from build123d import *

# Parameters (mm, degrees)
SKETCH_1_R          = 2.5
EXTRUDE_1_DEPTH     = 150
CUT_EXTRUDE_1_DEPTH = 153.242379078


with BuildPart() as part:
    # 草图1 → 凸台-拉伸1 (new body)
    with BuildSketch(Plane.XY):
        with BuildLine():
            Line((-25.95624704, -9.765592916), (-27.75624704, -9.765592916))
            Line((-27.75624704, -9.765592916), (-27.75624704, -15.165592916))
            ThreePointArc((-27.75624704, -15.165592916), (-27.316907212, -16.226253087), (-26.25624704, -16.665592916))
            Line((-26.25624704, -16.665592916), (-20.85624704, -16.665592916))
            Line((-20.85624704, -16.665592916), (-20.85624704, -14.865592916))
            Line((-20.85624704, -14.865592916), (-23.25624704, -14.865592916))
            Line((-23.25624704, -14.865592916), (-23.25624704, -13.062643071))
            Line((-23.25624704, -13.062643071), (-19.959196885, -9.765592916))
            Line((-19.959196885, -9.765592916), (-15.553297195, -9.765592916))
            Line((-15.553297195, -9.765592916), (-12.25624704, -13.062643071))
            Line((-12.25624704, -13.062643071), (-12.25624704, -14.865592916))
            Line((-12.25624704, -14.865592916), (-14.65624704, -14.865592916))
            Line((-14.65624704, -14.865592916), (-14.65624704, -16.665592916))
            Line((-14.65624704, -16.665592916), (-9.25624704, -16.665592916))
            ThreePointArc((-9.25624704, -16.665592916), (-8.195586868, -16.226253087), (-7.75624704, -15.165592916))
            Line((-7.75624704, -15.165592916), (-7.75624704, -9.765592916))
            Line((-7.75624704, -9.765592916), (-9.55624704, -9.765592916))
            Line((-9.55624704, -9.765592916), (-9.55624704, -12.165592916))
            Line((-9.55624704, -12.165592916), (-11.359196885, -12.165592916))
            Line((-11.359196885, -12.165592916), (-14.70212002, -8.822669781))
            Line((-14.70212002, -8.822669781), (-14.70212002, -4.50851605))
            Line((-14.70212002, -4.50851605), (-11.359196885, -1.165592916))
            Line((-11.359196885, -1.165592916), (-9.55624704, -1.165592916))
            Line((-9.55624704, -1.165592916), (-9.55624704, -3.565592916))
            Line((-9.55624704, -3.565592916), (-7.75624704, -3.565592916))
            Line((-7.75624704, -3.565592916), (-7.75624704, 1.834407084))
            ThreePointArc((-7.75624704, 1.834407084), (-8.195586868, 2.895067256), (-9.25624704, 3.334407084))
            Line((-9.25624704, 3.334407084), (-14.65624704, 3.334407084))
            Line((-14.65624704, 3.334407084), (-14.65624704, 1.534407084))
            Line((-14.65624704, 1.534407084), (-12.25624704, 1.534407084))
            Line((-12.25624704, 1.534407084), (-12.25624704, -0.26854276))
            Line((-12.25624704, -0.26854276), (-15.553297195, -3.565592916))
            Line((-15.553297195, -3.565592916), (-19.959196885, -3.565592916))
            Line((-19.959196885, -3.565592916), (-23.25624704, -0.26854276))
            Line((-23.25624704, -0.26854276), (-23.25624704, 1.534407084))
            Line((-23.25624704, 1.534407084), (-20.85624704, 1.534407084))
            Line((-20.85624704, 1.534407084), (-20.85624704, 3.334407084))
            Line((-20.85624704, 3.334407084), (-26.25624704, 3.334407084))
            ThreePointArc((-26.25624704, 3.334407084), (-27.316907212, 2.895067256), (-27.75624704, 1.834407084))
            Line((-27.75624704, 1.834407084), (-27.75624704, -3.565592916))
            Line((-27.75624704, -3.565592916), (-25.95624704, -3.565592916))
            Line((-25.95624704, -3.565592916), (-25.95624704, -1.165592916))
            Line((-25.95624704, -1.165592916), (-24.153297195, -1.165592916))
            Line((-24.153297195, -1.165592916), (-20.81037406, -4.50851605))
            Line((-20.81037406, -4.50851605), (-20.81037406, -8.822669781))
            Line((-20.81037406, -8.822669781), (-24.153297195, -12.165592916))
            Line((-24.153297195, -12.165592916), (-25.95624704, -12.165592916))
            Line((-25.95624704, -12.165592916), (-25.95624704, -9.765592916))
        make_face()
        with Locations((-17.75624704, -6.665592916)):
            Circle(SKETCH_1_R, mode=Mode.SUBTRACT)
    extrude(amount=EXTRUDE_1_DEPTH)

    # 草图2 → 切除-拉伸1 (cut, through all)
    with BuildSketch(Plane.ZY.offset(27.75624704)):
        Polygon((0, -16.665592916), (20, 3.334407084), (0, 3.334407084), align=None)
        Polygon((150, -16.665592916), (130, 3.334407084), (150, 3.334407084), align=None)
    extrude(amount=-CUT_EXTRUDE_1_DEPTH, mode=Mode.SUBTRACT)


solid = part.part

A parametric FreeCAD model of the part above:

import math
import FreeCAD as App
import Part
import Sketcher

V = App.Vector

doc = App.newDocument("Part")
body = doc.addObject("PartDesign::Body", "Body")

sketch1 = body.newObject("Sketcher::SketchObject", "Sketch")
sketch1.AttachmentSupport = (doc.getObject("XY_Plane"), [""])
sketch1.MapMode = "FlatFace"
sketch1.addGeometry(Part.LineSegment(V(-26, -9.8, 0), V(-27.8, -9.8, 0)), False)
sketch1.addGeometry(Part.LineSegment(V(-27.8, -9.8, 0), V(-27.8, -15.2, 0)), False)
sketch1.addGeometry(Part.ArcOfCircle(Part.Circle(V(-26.3, -15.2, 0), V(0, 0, 1), 1.5), math.radians(-180), math.radians(-90)), False)
sketch1.addGeometry(Part.LineSegment(V(-26.3, -16.7, 0), V(-20.9, -16.7, 0)), False)
sketch1.addGeometry(Part.LineSegment(V(-20.9, -16.7, 0), V(-20.9, -14.9, 0)), False)
sketch1.addGeometry(Part.LineSegment(V(-20.9, -14.9, 0), V(-23.3, -14.9, 0)), False)
sketch1.addGeometry(Part.LineSegment(V(-23.3, -14.9, 0), V(-23.3, -13.1, 0)), False)
sketch1.addGeometry(Part.LineSegment(V(-23.3, -13.1, 0), V(-20, -9.8, 0)), False)
sketch1.addGeometry(Part.LineSegment(V(-20, -9.8, 0), V(-15.6, -9.8, 0)), False)
sketch1.addGeometry(Part.LineSegment(V(-15.6, -9.8, 0), V(-12.3, -13.1, 0)), False)
sketch1.addGeometry(Part.LineSegment(V(-12.3, -13.1, 0), V(-12.3, -14.9, 0)), False)
sketch1.addGeometry(Part.LineSegment(V(-12.3, -14.9, 0), V(-14.7, -14.9, 0)), False)
sketch1.addGeometry(Part.LineSegment(V(-14.7, -14.9, 0), V(-14.7, -16.7, 0)), False)
sketch1.addGeometry(Part.LineSegment(V(-14.7, -16.7, 0), V(-9.3, -16.7, 0)), False)
sketch1.addGeometry(Part.ArcOfCircle(Part.Circle(V(-9.3, -15.2, 0), V(0, 0, 1), 1.5), math.radians(-90), math.radians(0)), False)
sketch1.addGeometry(Part.LineSegment(V(-7.8, -15.2, 0), V(-7.8, -9.8, 0)), False)
sketch1.addGeometry(Part.LineSegment(V(-7.8, -9.8, 0), V(-9.6, -9.8, 0)), False)
sketch1.addGeometry(Part.LineSegment(V(-9.6, -9.8, 0), V(-9.6, -12.2, 0)), False)
sketch1.addGeometry(Part.LineSegment(V(-9.6, -12.2, 0), V(-11.4, -12.2, 0)), False)
sketch1.addGeometry(Part.LineSegment(V(-11.4, -12.2, 0), V(-14.7, -8.8, 0)), False)
sketch1.addGeometry(Part.LineSegment(V(-14.7, -8.8, 0), V(-14.7, -4.5, 0)), False)
sketch1.addGeometry(Part.LineSegment(V(-14.7, -4.5, 0), V(-11.4, -1.2, 0)), False)
sketch1.addGeometry(Part.LineSegment(V(-11.4, -1.2, 0), V(-9.6, -1.2, 0)), False)
sketch1.addGeometry(Part.LineSegment(V(-9.6, -1.2, 0), V(-9.6, -3.6, 0)), False)
sketch1.addGeometry(Part.LineSegment(V(-9.6, -3.6, 0), V(-7.8, -3.6, 0)), False)
sketch1.addGeometry(Part.LineSegment(V(-7.8, -3.6, 0), V(-7.8, 1.8, 0)), False)
sketch1.addGeometry(Part.ArcOfCircle(Part.Circle(V(-9.3, 1.8, 0), V(0, 0, 1), 1.5), math.radians(0), math.radians(90)), False)
sketch1.addGeometry(Part.LineSegment(V(-9.3, 3.3, 0), V(-14.7, 3.3, 0)), False)
sketch1.addGeometry(Part.LineSegment(V(-14.7, 3.3, 0), V(-14.7, 1.5, 0)), False)
sketch1.addGeometry(Part.LineSegment(V(-14.7, 1.5, 0), V(-12.3, 1.5, 0)), False)
sketch1.addGeometry(Part.LineSegment(V(-12.3, 1.5, 0), V(-12.3, -0.3, 0)), False)
sketch1.addGeometry(Part.LineSegment(V(-12.3, -0.3, 0), V(-15.6, -3.6, 0)), False)
sketch1.addGeometry(Part.LineSegment(V(-15.6, -3.6, 0), V(-20, -3.6, 0)), False)
sketch1.addGeometry(Part.LineSegment(V(-20, -3.6, 0), V(-23.3, -0.3, 0)), False)
sketch1.addGeometry(Part.LineSegment(V(-23.3, -0.3, 0), V(-23.3, 1.5, 0)), False)
sketch1.addGeometry(Part.LineSegment(V(-23.3, 1.5, 0), V(-20.9, 1.5, 0)), False)
sketch1.addGeometry(Part.LineSegment(V(-20.9, 1.5, 0), V(-20.9, 3.3, 0)), False)
sketch1.addGeometry(Part.LineSegment(V(-20.9, 3.3, 0), V(-26.3, 3.3, 0)), False)
sketch1.addGeometry(Part.ArcOfCircle(Part.Circle(V(-26.3, 1.8, 0), V(0, 0, 1), 1.5), math.radians(90), math.radians(180)), False)
sketch1.addGeometry(Part.LineSegment(V(-27.8, 1.8, 0), V(-27.8, -3.6, 0)), False)
sketch1.addGeometry(Part.LineSegment(V(-27.8, -3.6, 0), V(-26, -3.6, 0)), False)
sketch1.addGeometry(Part.LineSegment(V(-26, -3.6, 0), V(-26, -1.2, 0)), False)
sketch1.addGeometry(Part.LineSegment(V(-26, -1.2, 0), V(-24.2, -1.2, 0)), False)
sketch1.addGeometry(Part.LineSegment(V(-24.2, -1.2, 0), V(-20.8, -4.5, 0)), False)
sketch1.addGeometry(Part.LineSegment(V(-20.8, -4.5, 0), V(-20.8, -8.8, 0)), False)
sketch1.addGeometry(Part.LineSegment(V(-20.8, -8.8, 0), V(-24.2, -12.2, 0)), False)
sketch1.addGeometry(Part.LineSegment(V(-24.2, -12.2, 0), V(-26, -12.2, 0)), False)
sketch1.addGeometry(Part.LineSegment(V(-26, -12.2, 0), V(-26, -9.8, 0)), False)
sketch1.addGeometry(Part.Circle(V(-17.8, -6.7, 0), V(0, 0, 1), 2.5), False)
sketch1.addConstraint(Sketcher.Constraint("Coincident", 0, 2, 1, 1))
sketch1.addConstraint(Sketcher.Constraint("Tangent", 1, 2, 2, 1))
sketch1.addConstraint(Sketcher.Constraint("Tangent", 2, 2, 3, 1))
sketch1.addConstraint(Sketcher.Constraint("Coincident", 3, 2, 4, 1))
sketch1.addConstraint(Sketcher.Constraint("Coincident", 4, 2, 5, 1))
sketch1.addConstraint(Sketcher.Constraint("Coincident", 5, 2, 6, 1))
sketch1.addConstraint(Sketcher.Constraint("Coincident", 6, 2, 7, 1))
sketch1.addConstraint(Sketcher.Constraint("Coincident", 7, 2, 8, 1))
sketch1.addConstraint(Sketcher.Constraint("Coincident", 8, 2, 9, 1))
sketch1.addConstraint(Sketcher.Constraint("Coincident", 9, 2, 10, 1))
sketch1.addConstraint(Sketcher.Constraint("Coincident", 10, 2, 11, 1))
sketch1.addConstraint(Sketcher.Constraint("Coincident", 11, 2, 12, 1))
sketch1.addConstraint(Sketcher.Constraint("Coincident", 12, 2, 13, 1))
sketch1.addConstraint(Sketcher.Constraint("Tangent", 13, 2, 14, 1))
sketch1.addConstraint(Sketcher.Constraint("Tangent", 14, 2, 15, 1))
sketch1.addConstraint(Sketcher.Constraint("Coincident", 15, 2, 16, 1))
sketch1.addConstraint(Sketcher.Constraint("Coincident", 16, 2, 17, 1))
sketch1.addConstraint(Sketcher.Constraint("Coincident", 17, 2, 18, 1))
sketch1.addConstraint(Sketcher.Constraint("Coincident", 18, 2, 19, 1))
sketch1.addConstraint(Sketcher.Constraint("Coincident", 19, 2, 20, 1))
sketch1.addConstraint(Sketcher.Constraint("Coincident", 20, 2, 21, 1))
sketch1.addConstraint(Sketcher.Constraint("Coincident", 21, 2, 22, 1))
sketch1.addConstraint(Sketcher.Constraint("Coincident", 22, 2, 23, 1))
sketch1.addConstraint(Sketcher.Constraint("Coincident", 23, 2, 24, 1))
sketch1.addConstraint(Sketcher.Constraint("Coincident", 24, 2, 25, 1))
sketch1.addConstraint(Sketcher.Constraint("Tangent", 25, 2, 26, 1))
sketch1.addConstraint(Sketcher.Constraint("Tangent", 26, 2, 27, 1))
sketch1.addConstraint(Sketcher.Constraint("Coincident", 27, 2, 28, 1))
sketch1.addConstraint(Sketcher.Constraint("Coincident", 28, 2, 29, 1))
sketch1.addConstraint(Sketcher.Constraint("Coincident", 29, 2, 30, 1))
sketch1.addConstraint(Sketcher.Constraint("Coincident", 30, 2, 31, 1))
sketch1.addConstraint(Sketcher.Constraint("Coincident", 31, 2, 32, 1))
sketch1.addConstraint(Sketcher.Constraint("Coincident", 32, 2, 33, 1))
sketch1.addConstraint(Sketcher.Constraint("Coincident", 33, 2, 34, 1))
sketch1.addConstraint(Sketcher.Constraint("Coincident", 34, 2, 35, 1))
sketch1.addConstraint(Sketcher.Constraint("Coincident", 35, 2, 36, 1))
sketch1.addConstraint(Sketcher.Constraint("Coincident", 36, 2, 37, 1))
sketch1.addConstraint(Sketcher.Constraint("Tangent", 37, 2, 38, 1))
sketch1.addConstraint(Sketcher.Constraint("Tangent", 38, 2, 39, 1))
sketch1.addConstraint(Sketcher.Constraint("Coincident", 39, 2, 40, 1))
sketch1.addConstraint(Sketcher.Constraint("Coincident", 40, 2, 41, 1))
sketch1.addConstraint(Sketcher.Constraint("Coincident", 41, 2, 42, 1))
sketch1.addConstraint(Sketcher.Constraint("Coincident", 42, 2, 43, 1))
sketch1.addConstraint(Sketcher.Constraint("Coincident", 43, 2, 44, 1))
sketch1.addConstraint(Sketcher.Constraint("Coincident", 44, 2, 45, 1))
sketch1.addConstraint(Sketcher.Constraint("Coincident", 45, 2, 46, 1))
sketch1.addConstraint(Sketcher.Constraint("Coincident", 46, 2, 47, 1))
sketch1.addConstraint(Sketcher.Constraint("Coincident", 47, 2, 0, 1))
sketch1.addConstraint(Sketcher.Constraint("Horizontal", 0))
sketch1.addConstraint(Sketcher.Constraint("Vertical", 1))
sketch1.addConstraint(Sketcher.Constraint("Horizontal", 3))
sketch1.addConstraint(Sketcher.Constraint("Vertical", 4))
sketch1.addConstraint(Sketcher.Constraint("Horizontal", 5))
sketch1.addConstraint(Sketcher.Constraint("Vertical", 6))
sketch1.addConstraint(Sketcher.Constraint("Horizontal", 8))
sketch1.addConstraint(Sketcher.Constraint("Vertical", 10))
sketch1.addConstraint(Sketcher.Constraint("Horizontal", 11))
sketch1.addConstraint(Sketcher.Constraint("Vertical", 12))
sketch1.addConstraint(Sketcher.Constraint("Horizontal", 13))
sketch1.addConstraint(Sketcher.Constraint("Vertical", 15))
sketch1.addConstraint(Sketcher.Constraint("Horizontal", 16))
sketch1.addConstraint(Sketcher.Constraint("Vertical", 17))
sketch1.addConstraint(Sketcher.Constraint("Horizontal", 18))
sketch1.addConstraint(Sketcher.Constraint("Vertical", 20))
sketch1.addConstraint(Sketcher.Constraint("Horizontal", 22))
sketch1.addConstraint(Sketcher.Constraint("Vertical", 23))
sketch1.addConstraint(Sketcher.Constraint("Horizontal", 24))
sketch1.addConstraint(Sketcher.Constraint("Vertical", 25))
sketch1.addConstraint(Sketcher.Constraint("Horizontal", 27))
sketch1.addConstraint(Sketcher.Constraint("Vertical", 28))
sketch1.addConstraint(Sketcher.Constraint("Horizontal", 29))
sketch1.addConstraint(Sketcher.Constraint("Vertical", 30))
sketch1.addConstraint(Sketcher.Constraint("Horizontal", 32))
sketch1.addConstraint(Sketcher.Constraint("Vertical", 34))
sketch1.addConstraint(Sketcher.Constraint("Horizontal", 35))
sketch1.addConstraint(Sketcher.Constraint("Vertical", 36))
sketch1.addConstraint(Sketcher.Constraint("Horizontal", 37))
sketch1.addConstraint(Sketcher.Constraint("Vertical", 39))
sketch1.addConstraint(Sketcher.Constraint("Horizontal", 40))
sketch1.addConstraint(Sketcher.Constraint("Vertical", 41))
sketch1.addConstraint(Sketcher.Constraint("Horizontal", 42))
sketch1.addConstraint(Sketcher.Constraint("Vertical", 44))
sketch1.addConstraint(Sketcher.Constraint("Horizontal", 46))
sketch1.addConstraint(Sketcher.Constraint("Vertical", 47))
sketch1.addConstraint(Sketcher.Constraint("Equal", 2, 14))
sketch1.addConstraint(Sketcher.Constraint("Equal", 14, 26))
sketch1.addConstraint(Sketcher.Constraint("Equal", 26, 38))
sketch1.addConstraint(Sketcher.Constraint("Perpendicular", 7, 9))
sketch1.addConstraint(Sketcher.Constraint("Parallel", 9, 19))
sketch1.addConstraint(Sketcher.Constraint("Perpendicular", 19, 21))
sketch1.addConstraint(Sketcher.Constraint("Parallel", 21, 31))
sketch1.addConstraint(Sketcher.Constraint("Perpendicular", 31, 33))
sketch1.addConstraint(Sketcher.Constraint("Parallel", 33, 43))
sketch1.addConstraint(Sketcher.Constraint("Perpendicular", 43, 45))
sketch1.addConstraint(Sketcher.Constraint("Horizontal", 2, 3, 14, 3))
sketch1.addConstraint(Sketcher.Constraint("Horizontal", 26, 3, 38, 3))
sketch1.addConstraint(Sketcher.Constraint("Horizontal", 0, 2, 7, 2))
sketch1.addConstraint(Sketcher.Constraint("Horizontal", 6, 2, 9, 2))
sketch1.addConstraint(Sketcher.Constraint("Horizontal", 5, 2, 10, 2))
sketch1.addConstraint(Sketcher.Constraint("Horizontal", 8, 2, 15, 2))
sketch1.addConstraint(Sketcher.Constraint("Horizontal", 24, 2, 31, 2))
sketch1.addConstraint(Sketcher.Constraint("Horizontal", 30, 2, 33, 2))
sketch1.addConstraint(Sketcher.Constraint("Horizontal", 29, 2, 34, 2))
sketch1.addConstraint(Sketcher.Constraint("Horizontal", 32, 2, 39, 2))
sketch1.addConstraint(Sketcher.Constraint("Horizontal", 22, 2, 41, 2))
sketch1.addConstraint(Sketcher.Constraint("Horizontal", 20, 2, 43, 2))
sketch1.addConstraint(Sketcher.Constraint("Horizontal", 19, 2, 44, 2))
sketch1.addConstraint(Sketcher.Constraint("Horizontal", 18, 2, 45, 2))
sketch1.addConstraint(Sketcher.Constraint("Vertical", 14, 3, 26, 3))
sketch1.addConstraint(Sketcher.Constraint("Vertical", 2, 3, 38, 3))
sketch1.addConstraint(Sketcher.Constraint("Vertical", 18, 2, 21, 2))
sketch1.addConstraint(Sketcher.Constraint("Vertical", 17, 2, 22, 2))
sketch1.addConstraint(Sketcher.Constraint("Vertical", 12, 2, 27, 2))
sketch1.addConstraint(Sketcher.Constraint("Vertical", 10, 2, 29, 2))
sketch1.addConstraint(Sketcher.Constraint("Vertical", 8, 2, 31, 2))
sketch1.addConstraint(Sketcher.Constraint("Vertical", 7, 2, 32, 2))
sketch1.addConstraint(Sketcher.Constraint("Vertical", 6, 2, 33, 2))
sketch1.addConstraint(Sketcher.Constraint("Vertical", 4, 2, 35, 2))
sketch1.addConstraint(Sketcher.Constraint("Vertical", 41, 2, 46, 2))
sketch1.addConstraint(Sketcher.Constraint("Equal", 5, 11))
sketch1.addConstraint(Sketcher.Constraint("Equal", 3, 13))
sketch1.addConstraint(Sketcher.Constraint("Equal", 0, 16))
sketch1.addConstraint(Sketcher.Constraint("Equal", 22, 42))
sketch1.addConstraint(Sketcher.Constraint("Equal", 37, 1))
sketch1.addConstraint(Sketcher.Constraint("Equal", 40, 4))
sketch1.addConstraint(Sketcher.Constraint("Equal", 46, 6))
sketch1.addConstraint(Sketcher.Constraint("Equal", 35, 17))
sketch1.addConstraint(Sketcher.Constraint("Equal", 17, 23))
sketch1.addConstraint(Sketcher.Constraint("Equal", 15, 25))
sketch1.addConstraint(Sketcher.Constraint("Equal", 12, 28))
sketch1.addConstraint(Sketcher.Constraint("Diameter", 48, 5.0))
sketch1.addConstraint(Sketcher.Constraint("Radius", 2, 1.5))
sketch1.addConstraint(Sketcher.Constraint("DistanceX", 0, 2, 0, 1, 1.8))
sketch1.addConstraint(Sketcher.Constraint("DistanceX", 3, 1, 3, 2, 5.4))
sketch1.addConstraint(Sketcher.Constraint("DistanceX", 5, 2, 5, 1, 2.4))
sketch1.addConstraint(Sketcher.Constraint("DistanceX", 2, 3, 14, 3, 17.0))
sketch1.addConstraint(Sketcher.Constraint("DistanceY", 14, 3, 26, 3, 17.0))
sketch1.addConstraint(Sketcher.Constraint("DistanceX", 0, 2, 48, 3, 10.0))
sketch1.addConstraint(Sketcher.Constraint("DistanceY", 2, 2, 48, 3, 10.0))
sketch1.addConstraint(Sketcher.Constraint("DistanceX", 8, 1, 8, 2, 4.4059))
sketch1.addConstraint(Sketcher.Constraint("DistanceY", 20, 1, 20, 2, 4.314154))
sketch1.addConstraint(Sketcher.Constraint("DistanceX", 19, 2, -1, 1, 14.70212))
sketch1.addConstraint(Sketcher.Constraint("DistanceY", 19, 2, -1, 1, 8.82267))
pad1 = body.newObject("PartDesign::Pad", "Pad")
pad1.Profile = sketch1
pad1.Length = 150

sketch2 = body.newObject("Sketcher::SketchObject", "Sketch001")
sketch2.AttachmentSupport = (doc.getObject("YZ_Plane"), [""])
sketch2.MapMode = "FlatFace"
sketch2.AttachmentOffset = App.Placement(V(0, 0, -27.756247), App.Rotation())
sketch2.addGeometry(Part.LineSegment(V(-17, 0, 0), V(3, 20, 0)), False)
sketch2.addGeometry(Part.LineSegment(V(3, 20, 0), V(3, 0, 0)), False)
sketch2.addGeometry(Part.LineSegment(V(3, 0, 0), V(-17, 0, 0)), False)
sketch2.addGeometry(Part.LineSegment(V(3, 130, 0), V(-17, 150, 0)), False)
sketch2.addGeometry(Part.LineSegment(V(-17, 150, 0), V(3, 150, 0)), False)
sketch2.addGeometry(Part.LineSegment(V(3, 150, 0), V(3, 130, 0)), False)
sketch2.addConstraint(Sketcher.Constraint("Coincident", 0, 2, 1, 1))
sketch2.addConstraint(Sketcher.Constraint("Coincident", 1, 2, 2, 1))
sketch2.addConstraint(Sketcher.Constraint("Coincident", 2, 2, 0, 1))
sketch2.addConstraint(Sketcher.Constraint("Coincident", 3, 2, 4, 1))
sketch2.addConstraint(Sketcher.Constraint("Coincident", 4, 2, 5, 1))
sketch2.addConstraint(Sketcher.Constraint("Coincident", 5, 2, 3, 1))
sketch2.addConstraint(Sketcher.Constraint("Vertical", 1))
sketch2.addConstraint(Sketcher.Constraint("Horizontal", 2))
sketch2.addConstraint(Sketcher.Constraint("Horizontal", 4))
sketch2.addConstraint(Sketcher.Constraint("Vertical", 5))
sketch2.addConstraint(Sketcher.Constraint("PointOnObject", 1, 2, -1))
sketch2.addConstraint(Sketcher.Constraint("Perpendicular", 0, 3))
sketch2.addConstraint(Sketcher.Constraint("Vertical", 2, 2, 3, 2))
sketch2.addConstraint(Sketcher.Constraint("Vertical", 1, 2, 4, 2))
sketch2.addConstraint(Sketcher.Constraint("Equal", 4, 1))
sketch2.addConstraint(Sketcher.Constraint("DistanceX", 2, 2, 2, 1, 20.0))
sketch2.addConstraint(Sketcher.Constraint("DistanceY", -1, 1, 3, 2, 150.0))
sketch2.addConstraint(Sketcher.Constraint("DistanceX", -1, 1, 0, 2, 3.334407))
pocket1 = body.newObject("PartDesign::Pocket", "Pocket")
pocket1.Profile = sketch2
pocket1.Type = "ThroughAll"
pocket1.Reversed = True

doc.recompute()
